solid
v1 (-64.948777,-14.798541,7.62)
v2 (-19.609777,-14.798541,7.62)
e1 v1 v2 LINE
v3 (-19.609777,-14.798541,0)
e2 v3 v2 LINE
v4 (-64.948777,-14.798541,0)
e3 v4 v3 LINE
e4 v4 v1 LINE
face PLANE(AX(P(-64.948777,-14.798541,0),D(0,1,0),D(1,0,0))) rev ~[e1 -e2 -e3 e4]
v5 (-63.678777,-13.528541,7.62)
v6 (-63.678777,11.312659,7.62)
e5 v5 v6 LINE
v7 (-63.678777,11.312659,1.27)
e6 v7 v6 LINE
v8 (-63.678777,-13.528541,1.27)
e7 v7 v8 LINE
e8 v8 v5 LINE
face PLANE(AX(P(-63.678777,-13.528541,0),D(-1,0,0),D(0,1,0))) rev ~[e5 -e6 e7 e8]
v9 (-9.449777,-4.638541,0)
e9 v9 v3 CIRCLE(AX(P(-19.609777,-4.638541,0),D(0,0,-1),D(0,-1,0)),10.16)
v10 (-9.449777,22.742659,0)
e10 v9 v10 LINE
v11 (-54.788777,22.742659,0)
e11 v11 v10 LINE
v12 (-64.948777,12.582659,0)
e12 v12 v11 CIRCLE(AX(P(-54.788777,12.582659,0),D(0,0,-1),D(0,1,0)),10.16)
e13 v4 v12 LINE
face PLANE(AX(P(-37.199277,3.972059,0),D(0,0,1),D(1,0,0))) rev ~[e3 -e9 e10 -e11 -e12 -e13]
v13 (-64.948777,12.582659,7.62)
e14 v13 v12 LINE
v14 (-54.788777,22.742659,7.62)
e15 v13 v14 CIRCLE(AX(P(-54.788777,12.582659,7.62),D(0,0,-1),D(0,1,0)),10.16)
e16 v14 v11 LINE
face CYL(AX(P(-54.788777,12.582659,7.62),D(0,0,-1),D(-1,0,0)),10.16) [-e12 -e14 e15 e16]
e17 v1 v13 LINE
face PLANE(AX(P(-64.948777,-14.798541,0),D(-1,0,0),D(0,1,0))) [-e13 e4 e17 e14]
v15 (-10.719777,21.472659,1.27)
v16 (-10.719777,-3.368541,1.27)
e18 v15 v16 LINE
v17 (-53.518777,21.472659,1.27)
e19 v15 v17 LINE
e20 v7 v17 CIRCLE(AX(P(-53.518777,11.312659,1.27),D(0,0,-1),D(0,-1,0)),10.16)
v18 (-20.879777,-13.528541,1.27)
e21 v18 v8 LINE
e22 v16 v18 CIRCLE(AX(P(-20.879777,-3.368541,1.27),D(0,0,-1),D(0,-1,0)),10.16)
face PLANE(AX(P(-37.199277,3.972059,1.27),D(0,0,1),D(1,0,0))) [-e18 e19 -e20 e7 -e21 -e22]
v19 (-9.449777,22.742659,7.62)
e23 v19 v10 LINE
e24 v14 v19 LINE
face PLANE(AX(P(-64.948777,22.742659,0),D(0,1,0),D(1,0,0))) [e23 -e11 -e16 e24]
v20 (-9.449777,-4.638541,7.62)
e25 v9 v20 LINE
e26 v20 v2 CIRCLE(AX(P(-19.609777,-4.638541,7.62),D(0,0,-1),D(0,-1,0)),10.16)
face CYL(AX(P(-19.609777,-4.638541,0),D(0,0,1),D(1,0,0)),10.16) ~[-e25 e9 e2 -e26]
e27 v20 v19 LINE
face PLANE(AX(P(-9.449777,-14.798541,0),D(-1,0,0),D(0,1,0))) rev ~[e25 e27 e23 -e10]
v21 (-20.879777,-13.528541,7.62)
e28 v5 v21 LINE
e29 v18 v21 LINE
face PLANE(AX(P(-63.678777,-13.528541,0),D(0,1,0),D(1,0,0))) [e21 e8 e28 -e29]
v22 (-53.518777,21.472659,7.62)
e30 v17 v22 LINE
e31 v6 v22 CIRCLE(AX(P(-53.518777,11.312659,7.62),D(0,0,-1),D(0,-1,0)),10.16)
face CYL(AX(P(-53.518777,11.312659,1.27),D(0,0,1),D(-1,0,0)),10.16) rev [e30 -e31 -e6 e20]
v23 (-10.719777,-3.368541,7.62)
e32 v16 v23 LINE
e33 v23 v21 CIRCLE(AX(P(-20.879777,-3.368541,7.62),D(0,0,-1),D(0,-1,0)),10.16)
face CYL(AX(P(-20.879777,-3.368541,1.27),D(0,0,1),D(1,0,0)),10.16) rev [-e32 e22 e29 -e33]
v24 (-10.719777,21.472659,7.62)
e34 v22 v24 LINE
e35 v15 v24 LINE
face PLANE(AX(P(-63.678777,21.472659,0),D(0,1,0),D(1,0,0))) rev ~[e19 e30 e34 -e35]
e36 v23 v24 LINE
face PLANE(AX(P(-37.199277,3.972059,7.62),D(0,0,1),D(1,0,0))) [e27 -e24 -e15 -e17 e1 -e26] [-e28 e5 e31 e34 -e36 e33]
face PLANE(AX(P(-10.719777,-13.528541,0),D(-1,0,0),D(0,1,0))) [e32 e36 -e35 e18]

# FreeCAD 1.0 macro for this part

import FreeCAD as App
import Part
import Sketcher
from FreeCAD import Vector
Q = App.Units.Quantity


def edges_at(feature, points):
    """Names of the edges that pass closest to the given points."""
    edges = feature.Shape.Edges
    near = lambda p: min(range(len(edges)), key=lambda i: edges[i].distToShape(Part.Vertex(*p))[0])
    return sorted({f"Edge{near(p) + 1}" for p in points})

doc = App.newDocument("Part")
params = doc.addObject("Spreadsheet::Sheet", "Params")
for row, (alias, value) in enumerate([
    ("sketch1_width", "2.185 in"),
    ("sketch1_height", "1.478 in"),
    ("pad1_length", "0.05 in"),
    ("sketch2_width", "2.185 in"),
    ("sketch2_width2", "2.085 in"),
    ("sketch2_height", "1.478 in"),
    ("sketch2_height2", "1.378 in"),
    ("pad2_length", "0.3 in"),
    ("fillet_radius", "0.4 in"),
], start=1):
    params.set(f"A{row}", alias)
    params.set(f"B{row}", "=" + value)
    params.setAlias(f"B{row}", alias)

body = doc.addObject("PartDesign::Body", "Body")

# Sketch on XY plane
sketch1 = doc.addObject("Sketcher::SketchObject", "Sketch")
body.addObject(sketch1)
sketch1.AttachmentSupport = (doc.XY_Plane, [""])
sketch1.MapMode = "FlatFace"
sketch1.addGeometry([
    Part.LineSegment(Vector(-64.948777, 22.742659, 0), Vector(-64.948777, -14.798541, 0)),
    Part.LineSegment(Vector(-64.948777, -14.798541, 0), Vector(-9.449777, -14.798541, 0)),
    Part.LineSegment(Vector(-9.449777, -14.798541, 0), Vector(-9.449777, 22.742659, 0)),
    Part.LineSegment(Vector(-9.449777, 22.742659, 0), Vector(-64.948777, 22.742659, 0)),
], False)
sketch1.addConstraint([
    Sketcher.Constraint("Coincident", 0, 2, 1, 1),
    Sketcher.Constraint("Coincident", 1, 2, 2, 1),
    Sketcher.Constraint("Coincident", 2, 2, 3, 1),
    Sketcher.Constraint("Coincident", 3, 2, 0, 1),
    Sketcher.Constraint("Vertical", 0),
    Sketcher.Constraint("Horizontal", 1),
    Sketcher.Constraint("Vertical", 2),
    Sketcher.Constraint("Horizontal", 3),
    Sketcher.Constraint("DistanceX", 1, 1, 1, 2, Q("2.185 in")),
    Sketcher.Constraint("DistanceY", 0, 2, 0, 1, Q("1.478 in")),
    Sketcher.Constraint("DistanceY", 0, 2, -1, 1, 14.798541),
    Sketcher.Constraint("DistanceX", 0, 2, -1, 1, 64.948777),
])
sketch1.setExpression("Constraints[8]", "Params.sketch1_width")
sketch1.setExpression("Constraints[9]", "Params.sketch1_height")
pad1 = doc.addObject("PartDesign::Pad", "Pad")
body.addObject(pad1)
pad1.Profile = sketch1
pad1.setExpression("Length", "Params.pad1_length")

# Sketch on XY plane
sketch2 = doc.addObject("Sketcher::SketchObject", "Sketch001")
body.addObject(sketch2)
sketch2.AttachmentSupport = (doc.XY_Plane, [""])
sketch2.MapMode = "FlatFace"
sketch2.addGeometry([
    Part.LineSegment(Vector(-64.948777, 22.742659, 0), Vector(-64.948777, -14.798541, 0)),  # 0
    Part.LineSegment(Vector(-64.948777, -14.798541, 0), Vector(-9.449777, -14.798541, 0)),  # 1
    Part.LineSegment(Vector(-9.449777, -14.798541, 0), Vector(-9.449777, 22.742659, 0)),  # 2
    Part.LineSegment(Vector(-9.449777, 22.742659, 0), Vector(-64.948777, 22.742659, 0)),  # 3
    Part.LineSegment(Vector(-10.719777, -13.528541, 0), Vector(-63.678777, -13.528541, 0)),  # 4
    Part.LineSegment(Vector(-63.678777, -13.528541, 0), Vector(-63.678777, 21.472659, 0)),  # 5
    Part.LineSegment(Vector(-63.678777, 21.472659, 0), Vector(-10.719777, 21.472659, 0)),  # 6
    Part.LineSegment(Vector(-10.719777, 21.472659, 0), Vector(-10.719777, -13.528541, 0)),  # 7
], False)
sketch2.addConstraint([
    Sketcher.Constraint("Coincident", 0, 2, 1, 1),
    Sketcher.Constraint("Coincident", 1, 2, 2, 1),
    Sketcher.Constraint("Coincident", 2, 2, 3, 1),
    Sketcher.Constraint("Coincident", 3, 2, 0, 1),
    Sketcher.Constraint("Coincident", 4, 2, 5, 1),
    Sketcher.Constraint("Coincident", 5, 2, 6, 1),
    Sketcher.Constraint("Coincident", 6, 2, 7, 1),
    Sketcher.Constraint("Coincident", 7, 2, 4, 1),
    Sketcher.Constraint("Vertical", 0),
    Sketcher.Constraint("Horizontal", 1),
    Sketcher.Constraint("Vertical", 2),
    Sketcher.Constraint("Horizontal", 3),
    Sketcher.Constraint("Horizontal", 4),
    Sketcher.Constraint("Vertical", 5),
    Sketcher.Constraint("Horizontal", 6),
    Sketcher.Constraint("Vertical", 7),
    Sketcher.Constraint("DistanceX", 1, 1, 1, 2, Q("2.185 in")),
    Sketcher.Constraint("DistanceX", 4, 2, 4, 1, Q("2.085 in")),
    Sketcher.Constraint("DistanceY", 0, 2, 0, 1, Q("1.478 in")),
    Sketcher.Constraint("DistanceY", 5, 1, 5, 2, Q("1.378 in")),
    Sketcher.Constraint("DistanceX", 0, 2, 4, 2, Q("0.05 in")),
    Sketcher.Constraint("DistanceY", 0, 2, 4, 2, Q("0.05 in")),
    Sketcher.Constraint("DistanceY", 0, 2, -1, 1, 14.798541),
    Sketcher.Constraint("DistanceX", 0, 2, -1, 1, 64.948777),
])
sketch2.setExpression("Constraints[16]", "Params.sketch2_width")
sketch2.setExpression("Constraints[17]", "Params.sketch2_width2")
sketch2.setExpression("Constraints[18]", "Params.sketch2_height")
sketch2.setExpression("Constraints[19]", "Params.sketch2_height2")
pad2 = doc.addObject("PartDesign::Pad", "Pad001")
body.addObject(pad2)
pad2.Profile = sketch2
pad2.setExpression("Length", "Params.pad2_length")
doc.recompute()

fillet = doc.addObject("PartDesign::Fillet", "Fillet")
body.addObject(fillet)
fillet.Base = (pad2, edges_at(pad2, [
    (-64.949, 22.743, 3.81),
    (-63.679, 21.473, 4.445),
    (-10.72, -13.529, 4.445),
    (-9.45, -14.799, 3.81),
]))
fillet.setExpression("Radius", "Params.fillet_radius")

doc.recompute()
